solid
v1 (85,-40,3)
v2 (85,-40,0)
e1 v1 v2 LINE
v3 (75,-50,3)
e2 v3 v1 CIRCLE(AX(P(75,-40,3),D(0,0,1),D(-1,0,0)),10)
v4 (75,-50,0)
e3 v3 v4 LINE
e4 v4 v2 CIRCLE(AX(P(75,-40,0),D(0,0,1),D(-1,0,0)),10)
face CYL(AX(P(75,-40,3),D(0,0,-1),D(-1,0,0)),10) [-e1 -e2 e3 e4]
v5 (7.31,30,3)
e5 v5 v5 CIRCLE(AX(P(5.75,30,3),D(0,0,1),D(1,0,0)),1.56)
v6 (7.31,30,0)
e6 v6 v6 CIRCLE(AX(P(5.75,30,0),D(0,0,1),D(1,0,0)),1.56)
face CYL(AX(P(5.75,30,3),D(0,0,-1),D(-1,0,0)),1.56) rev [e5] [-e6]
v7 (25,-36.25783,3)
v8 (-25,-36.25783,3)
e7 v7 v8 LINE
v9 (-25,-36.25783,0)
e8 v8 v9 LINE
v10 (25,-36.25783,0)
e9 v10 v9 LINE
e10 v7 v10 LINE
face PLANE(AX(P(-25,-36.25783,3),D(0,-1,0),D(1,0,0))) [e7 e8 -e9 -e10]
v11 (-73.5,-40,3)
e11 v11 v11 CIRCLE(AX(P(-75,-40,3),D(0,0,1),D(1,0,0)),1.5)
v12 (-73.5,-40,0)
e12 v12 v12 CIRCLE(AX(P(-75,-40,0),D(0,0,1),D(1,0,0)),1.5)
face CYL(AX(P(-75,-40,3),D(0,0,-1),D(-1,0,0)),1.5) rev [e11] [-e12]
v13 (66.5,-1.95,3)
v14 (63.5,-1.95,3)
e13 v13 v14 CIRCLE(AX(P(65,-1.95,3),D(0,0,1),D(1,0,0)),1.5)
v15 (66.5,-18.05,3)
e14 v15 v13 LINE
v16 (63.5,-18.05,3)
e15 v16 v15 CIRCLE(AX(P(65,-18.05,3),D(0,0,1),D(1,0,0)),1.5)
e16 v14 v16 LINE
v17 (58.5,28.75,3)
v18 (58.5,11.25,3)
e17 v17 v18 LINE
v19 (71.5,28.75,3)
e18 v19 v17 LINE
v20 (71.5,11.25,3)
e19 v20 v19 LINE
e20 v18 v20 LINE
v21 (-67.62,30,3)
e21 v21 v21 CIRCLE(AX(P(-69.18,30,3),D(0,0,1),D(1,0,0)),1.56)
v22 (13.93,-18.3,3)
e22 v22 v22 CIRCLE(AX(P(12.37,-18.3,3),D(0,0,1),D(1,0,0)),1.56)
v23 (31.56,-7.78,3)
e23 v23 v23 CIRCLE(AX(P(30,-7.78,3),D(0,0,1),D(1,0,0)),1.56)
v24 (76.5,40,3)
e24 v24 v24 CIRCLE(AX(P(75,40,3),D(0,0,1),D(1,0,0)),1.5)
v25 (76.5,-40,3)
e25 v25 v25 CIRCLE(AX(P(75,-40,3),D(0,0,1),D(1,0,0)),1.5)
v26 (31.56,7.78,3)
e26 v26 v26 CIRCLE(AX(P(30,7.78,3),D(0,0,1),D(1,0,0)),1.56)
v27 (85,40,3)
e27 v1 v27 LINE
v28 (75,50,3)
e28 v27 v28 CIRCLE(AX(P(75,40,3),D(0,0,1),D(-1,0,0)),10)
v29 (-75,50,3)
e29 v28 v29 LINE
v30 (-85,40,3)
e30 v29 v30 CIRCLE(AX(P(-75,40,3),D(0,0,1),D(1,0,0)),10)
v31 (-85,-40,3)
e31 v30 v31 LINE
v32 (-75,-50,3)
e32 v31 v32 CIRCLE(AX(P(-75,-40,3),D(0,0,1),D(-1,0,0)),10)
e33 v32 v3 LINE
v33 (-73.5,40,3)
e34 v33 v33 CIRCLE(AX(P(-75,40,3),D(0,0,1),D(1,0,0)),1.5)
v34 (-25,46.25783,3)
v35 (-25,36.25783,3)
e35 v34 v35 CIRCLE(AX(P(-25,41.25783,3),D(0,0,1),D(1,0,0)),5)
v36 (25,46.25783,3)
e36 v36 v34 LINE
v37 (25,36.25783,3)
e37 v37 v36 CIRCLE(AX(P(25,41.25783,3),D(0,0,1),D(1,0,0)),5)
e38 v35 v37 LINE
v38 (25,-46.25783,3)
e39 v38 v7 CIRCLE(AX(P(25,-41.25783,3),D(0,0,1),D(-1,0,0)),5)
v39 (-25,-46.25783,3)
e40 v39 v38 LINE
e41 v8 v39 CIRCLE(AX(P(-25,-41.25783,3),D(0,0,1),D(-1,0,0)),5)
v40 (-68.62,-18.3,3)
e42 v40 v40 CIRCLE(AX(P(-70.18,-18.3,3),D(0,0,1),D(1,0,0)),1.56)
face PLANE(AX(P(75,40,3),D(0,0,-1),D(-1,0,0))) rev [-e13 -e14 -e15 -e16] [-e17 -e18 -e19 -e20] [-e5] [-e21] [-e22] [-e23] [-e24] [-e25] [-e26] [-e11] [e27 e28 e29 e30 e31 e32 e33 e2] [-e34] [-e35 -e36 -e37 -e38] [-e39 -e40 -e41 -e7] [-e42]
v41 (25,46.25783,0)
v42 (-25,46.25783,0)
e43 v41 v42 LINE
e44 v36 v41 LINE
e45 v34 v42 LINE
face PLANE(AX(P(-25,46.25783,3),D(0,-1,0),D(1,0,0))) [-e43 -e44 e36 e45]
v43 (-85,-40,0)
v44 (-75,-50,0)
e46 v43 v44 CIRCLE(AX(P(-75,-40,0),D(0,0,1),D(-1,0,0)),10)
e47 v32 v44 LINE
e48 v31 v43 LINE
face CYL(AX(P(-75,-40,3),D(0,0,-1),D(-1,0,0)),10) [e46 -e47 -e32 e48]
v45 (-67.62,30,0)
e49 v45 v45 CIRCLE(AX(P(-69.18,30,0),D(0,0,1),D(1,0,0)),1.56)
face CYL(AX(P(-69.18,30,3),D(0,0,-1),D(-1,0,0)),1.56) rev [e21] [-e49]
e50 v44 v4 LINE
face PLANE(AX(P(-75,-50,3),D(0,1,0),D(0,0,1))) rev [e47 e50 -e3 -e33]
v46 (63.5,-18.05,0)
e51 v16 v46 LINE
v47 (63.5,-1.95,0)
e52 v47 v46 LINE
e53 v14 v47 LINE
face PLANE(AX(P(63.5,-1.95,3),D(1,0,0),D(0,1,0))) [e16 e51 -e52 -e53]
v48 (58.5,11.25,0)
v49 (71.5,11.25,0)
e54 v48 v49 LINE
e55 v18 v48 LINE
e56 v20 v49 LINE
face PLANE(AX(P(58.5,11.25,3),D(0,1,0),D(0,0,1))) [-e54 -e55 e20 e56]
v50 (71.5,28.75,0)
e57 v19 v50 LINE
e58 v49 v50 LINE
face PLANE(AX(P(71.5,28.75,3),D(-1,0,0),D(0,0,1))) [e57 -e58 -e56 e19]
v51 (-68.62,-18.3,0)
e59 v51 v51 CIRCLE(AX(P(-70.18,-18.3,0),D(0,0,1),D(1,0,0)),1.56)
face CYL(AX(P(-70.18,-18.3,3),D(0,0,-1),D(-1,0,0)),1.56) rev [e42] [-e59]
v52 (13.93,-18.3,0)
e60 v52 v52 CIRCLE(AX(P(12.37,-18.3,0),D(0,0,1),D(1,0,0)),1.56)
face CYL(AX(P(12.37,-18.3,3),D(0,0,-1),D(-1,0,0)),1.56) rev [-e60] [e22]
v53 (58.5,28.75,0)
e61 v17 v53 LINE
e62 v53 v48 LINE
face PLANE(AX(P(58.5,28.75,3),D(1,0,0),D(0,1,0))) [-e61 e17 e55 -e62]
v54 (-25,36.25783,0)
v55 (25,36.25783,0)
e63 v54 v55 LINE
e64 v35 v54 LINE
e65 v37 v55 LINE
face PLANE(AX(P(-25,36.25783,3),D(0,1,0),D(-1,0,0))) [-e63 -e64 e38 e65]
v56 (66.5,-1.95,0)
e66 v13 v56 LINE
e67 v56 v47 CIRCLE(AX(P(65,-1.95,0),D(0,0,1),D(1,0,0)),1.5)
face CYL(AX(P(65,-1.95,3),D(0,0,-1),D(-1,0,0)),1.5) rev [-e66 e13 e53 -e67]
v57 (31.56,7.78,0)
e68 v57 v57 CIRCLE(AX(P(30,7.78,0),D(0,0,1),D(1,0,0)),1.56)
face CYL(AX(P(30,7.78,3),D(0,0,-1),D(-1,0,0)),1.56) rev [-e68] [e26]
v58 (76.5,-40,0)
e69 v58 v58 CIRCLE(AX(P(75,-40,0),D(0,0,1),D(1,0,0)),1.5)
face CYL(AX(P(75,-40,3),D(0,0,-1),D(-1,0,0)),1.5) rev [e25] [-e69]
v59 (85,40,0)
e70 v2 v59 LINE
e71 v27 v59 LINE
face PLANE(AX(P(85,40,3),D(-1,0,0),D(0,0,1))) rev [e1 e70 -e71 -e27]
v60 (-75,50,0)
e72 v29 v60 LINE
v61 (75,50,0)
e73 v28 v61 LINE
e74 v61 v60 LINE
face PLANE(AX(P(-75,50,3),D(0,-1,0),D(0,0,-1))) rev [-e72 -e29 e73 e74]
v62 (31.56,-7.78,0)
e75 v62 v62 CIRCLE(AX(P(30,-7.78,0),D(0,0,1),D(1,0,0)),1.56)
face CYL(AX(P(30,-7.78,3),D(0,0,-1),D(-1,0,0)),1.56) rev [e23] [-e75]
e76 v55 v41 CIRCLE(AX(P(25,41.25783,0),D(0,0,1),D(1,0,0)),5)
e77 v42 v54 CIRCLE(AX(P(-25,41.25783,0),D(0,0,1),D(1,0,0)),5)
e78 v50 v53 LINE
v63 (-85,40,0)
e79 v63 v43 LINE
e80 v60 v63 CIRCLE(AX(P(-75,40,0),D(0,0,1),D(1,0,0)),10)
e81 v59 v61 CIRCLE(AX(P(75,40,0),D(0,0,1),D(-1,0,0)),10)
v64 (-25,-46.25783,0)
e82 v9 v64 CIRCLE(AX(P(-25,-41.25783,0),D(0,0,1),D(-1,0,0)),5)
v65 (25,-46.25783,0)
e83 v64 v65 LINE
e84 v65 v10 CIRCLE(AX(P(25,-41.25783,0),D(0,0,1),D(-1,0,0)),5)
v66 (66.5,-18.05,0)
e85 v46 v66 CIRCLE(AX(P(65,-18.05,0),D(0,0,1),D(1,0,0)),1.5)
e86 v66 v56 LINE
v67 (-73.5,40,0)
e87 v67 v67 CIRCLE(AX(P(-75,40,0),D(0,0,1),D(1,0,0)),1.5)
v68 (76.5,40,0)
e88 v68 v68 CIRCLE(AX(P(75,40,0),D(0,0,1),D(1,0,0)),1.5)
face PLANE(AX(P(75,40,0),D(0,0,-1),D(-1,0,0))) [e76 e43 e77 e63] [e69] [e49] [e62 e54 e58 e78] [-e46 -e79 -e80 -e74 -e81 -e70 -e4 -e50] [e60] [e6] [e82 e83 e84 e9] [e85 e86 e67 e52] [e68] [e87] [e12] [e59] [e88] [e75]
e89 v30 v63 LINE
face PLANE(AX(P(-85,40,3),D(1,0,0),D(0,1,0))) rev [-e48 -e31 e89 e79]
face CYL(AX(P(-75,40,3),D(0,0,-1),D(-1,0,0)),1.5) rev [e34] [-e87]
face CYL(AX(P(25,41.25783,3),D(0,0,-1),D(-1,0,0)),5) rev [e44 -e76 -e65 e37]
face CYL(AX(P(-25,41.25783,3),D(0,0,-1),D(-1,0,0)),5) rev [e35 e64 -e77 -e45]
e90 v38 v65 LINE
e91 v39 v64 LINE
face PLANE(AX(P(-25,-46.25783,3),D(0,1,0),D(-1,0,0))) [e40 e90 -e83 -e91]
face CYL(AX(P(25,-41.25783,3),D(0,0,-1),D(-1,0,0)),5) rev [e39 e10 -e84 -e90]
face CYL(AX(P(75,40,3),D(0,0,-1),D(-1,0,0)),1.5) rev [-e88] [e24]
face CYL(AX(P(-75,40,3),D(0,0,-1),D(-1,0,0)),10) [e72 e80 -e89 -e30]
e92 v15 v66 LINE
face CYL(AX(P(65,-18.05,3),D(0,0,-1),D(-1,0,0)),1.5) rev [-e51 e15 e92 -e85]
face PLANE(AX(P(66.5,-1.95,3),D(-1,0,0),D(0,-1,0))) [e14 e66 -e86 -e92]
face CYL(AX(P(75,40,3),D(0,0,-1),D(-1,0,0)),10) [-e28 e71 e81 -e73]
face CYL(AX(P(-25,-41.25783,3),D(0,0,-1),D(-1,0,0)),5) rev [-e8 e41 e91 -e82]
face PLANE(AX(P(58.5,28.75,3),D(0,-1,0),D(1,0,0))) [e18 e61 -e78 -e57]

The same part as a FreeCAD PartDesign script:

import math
import FreeCAD as App
import Part
import Sketcher
from FreeCAD import Vector
Q = App.Units.Quantity

doc = App.newDocument("Part")
params = doc.addObject("Spreadsheet::Sheet", "Params")
for row, (alias, value) in enumerate([
    ("sketch1_diameter", "3 mm"),
    ("sketch1_radius", "10 mm"),
    ("sketch1_radius2", "5 mm"),
    ("sketch1_diameter2", "3.12 mm"),
    ("sketch1_width", "150 mm"),
    ("pad1_length", "3 mm"),
], start=1):
    params.set(f"A{row}", alias)
    params.set(f"B{row}", "=" + value)
    params.setAlias(f"B{row}", alias)

body = doc.addObject("PartDesign::Body", "Body")

# Sketch on XY plane
sketch1 = doc.addObject("Sketcher::SketchObject", "Sketch")
body.addObject(sketch1)
sketch1.AttachmentSupport = (doc.XY_Plane, [""])
sketch1.MapMode = "FlatFace"
sketch1.addGeometry(Part.LineSegment(Vector(75, 50, 0), Vector(-75, 50, 0)), False)
sketch1.addGeometry(Part.ArcOfCircle(Part.Circle(Vector(-75, 40, 0), Vector(0, 0, 1), 10), math.radians(90), math.radians(180)), False)
sketch1.addGeometry(Part.LineSegment(Vector(-85, 40, 0), Vector(-85, -40, 0)), False)
sketch1.addGeometry(Part.ArcOfCircle(Part.Circle(Vector(-75, -40, 0), Vector(0, 0, 1), 10), math.radians(180), math.radians(270)), False)
sketch1.addGeometry(Part.LineSegment(Vector(-75, -50, 0), Vector(75, -50, 0)), False)
sketch1.addGeometry(Part.ArcOfCircle(Part.Circle(Vector(75, -40, 0), Vector(0, 0, 1), 10), math.radians(-90), math.radians(0)), False)
sketch1.addGeometry(Part.LineSegment(Vector(85, -40, 0), Vector(85, 40, 0)), False)
sketch1.addGeometry(Part.ArcOfCircle(Part.Circle(Vector(75, 40, 0), Vector(0, 0, 1), 10), math.radians(0), math.radians(90)), False)
sketch1.addGeometry(Part.Circle(Vector(75, -40, 0), Vector(0, 0, 1), 1.5), False)
sketch1.addGeometry(Part.LineSegment(Vector(66.5, -1.95, 0), Vector(66.5, -18.05, 0)), False)
sketch1.addGeometry(Part.ArcOfCircle(Part.Circle(Vector(65, -18.05, 0), Vector(0, 0, 1), 1.5), math.radians(180), math.radians(360)), False)
sketch1.addGeometry(Part.LineSegment(Vector(63.5, -18.05, 0), Vector(63.5, -1.95, 0)), False)
sketch1.addGeometry(Part.ArcOfCircle(Part.Circle(Vector(65, -1.95, 0), Vector(0, 0, 1), 1.5), math.radians(0), math.radians(180)), False)
sketch1.addGeometry(Part.Circle(Vector(12.37, -18.3, 0), Vector(0, 0, 1), 1.56), False)
sketch1.addGeometry(Part.Circle(Vector(30, -7.78, 0), Vector(0, 0, 1), 1.56), False)
sketch1.addGeometry(Part.ArcOfCircle(Part.Circle(Vector(-25, -41.25783, 0), Vector(0, 0, 1), 5), math.radians(90), math.radians(270)), False)
sketch1.addGeometry(Part.LineSegment(Vector(-25, -36.25783, 0), Vector(25, -36.25783, 0)), False)
sketch1.addGeometry(Part.ArcOfCircle(Part.Circle(Vector(25, -41.25783, 0), Vector(0, 0, 1), 5), math.radians(-90), math.radians(90)), False)
sketch1.addGeometry(Part.LineSegment(Vector(25, -46.25783, 0), Vector(-25, -46.25783, 0)), False)
sketch1.addGeometry(Part.Circle(Vector(-75, -40, 0), Vector(0, 0, 1), 1.5), False)
sketch1.addGeometry(Part.Circle(Vector(-70.18, -18.3, 0), Vector(0, 0, 1), 1.56), False)
sketch1.addGeometry(Part.LineSegment(Vector(58.5, 11.25, 0), Vector(58.5, 28.75, 0)), False)
sketch1.addGeometry(Part.LineSegment(Vector(58.5, 28.75, 0), Vector(71.5, 28.75, 0)), False)
sketch1.addGeometry(Part.LineSegment(Vector(71.5, 28.75, 0), Vector(71.5, 11.25, 0)), False)
sketch1.addGeometry(Part.LineSegment(Vector(71.5, 11.25, 0), Vector(58.5, 11.25, 0)), False)
sketch1.addGeometry(Part.Circle(Vector(30, 7.78, 0), Vector(0, 0, 1), 1.56), False)
sketch1.addGeometry(Part.Circle(Vector(75, 40, 0), Vector(0, 0, 1), 1.5), False)
sketch1.addGeometry(Part.Circle(Vector(5.75, 30, 0), Vector(0, 0, 1), 1.56), False)
sketch1.addGeometry(Part.LineSegment(Vector(-25, 46.25783, 0), Vector(25, 46.25783, 0)), False)
sketch1.addGeometry(Part.ArcOfCircle(Part.Circle(Vector(25, 41.25783, 0), Vector(0, 0, 1), 5), math.radians(-90), math.radians(90)), False)
sketch1.addGeometry(Part.LineSegment(Vector(25, 36.25783, 0), Vector(-25, 36.25783, 0)), False)
sketch1.addGeometry(Part.ArcOfCircle(Part.Circle(Vector(-25, 41.25783, 0), Vector(0, 0, 1), 5), math.radians(90), math.radians(270)), False)
sketch1.addGeometry(Part.Circle(Vector(-69.18, 30, 0), Vector(0, 0, 1), 1.56), False)
sketch1.addGeometry(Part.Circle(Vector(-75, 40, 0), Vector(0, 0, 1), 1.5), False)
sketch1.addConstraint(Sketcher.Constraint("Tangent", 0, 2, 1, 1))
sketch1.addConstraint(Sketcher.Constraint("Tangent", 1, 2, 2, 1))
sketch1.addConstraint(Sketcher.Constraint("Tangent", 2, 2, 3, 1))
sketch1.addConstraint(Sketcher.Constraint("Tangent", 3, 2, 4, 1))
sketch1.addConstraint(Sketcher.Constraint("Tangent", 4, 2, 5, 1))
sketch1.addConstraint(Sketcher.Constraint("Tangent", 5, 2, 6, 1))
sketch1.addConstraint(Sketcher.Constraint("Tangent", 6, 2, 7, 1))
sketch1.addConstraint(Sketcher.Constraint("Tangent", 7, 2, 0, 1))
sketch1.addConstraint(Sketcher.Constraint("Tangent", 9, 2, 10, 2))
sketch1.addConstraint(Sketcher.Constraint("Tangent", 10, 1, 11, 1))
sketch1.addConstraint(Sketcher.Constraint("Tangent", 11, 2, 12, 2))
sketch1.addConstraint(Sketcher.Constraint("Tangent", 12, 1, 9, 1))
sketch1.addConstraint(Sketcher.Constraint("Tangent", 15, 1, 16, 1))
sketch1.addConstraint(Sketcher.Constraint("Tangent", 16, 2, 17, 2))
sketch1.addConstraint(Sketcher.Constraint("Tangent", 17, 1, 18, 1))
sketch1.addConstraint(Sketcher.Constraint("Tangent", 18, 2, 15, 2))
sketch1.addConstraint(Sketcher.Constraint("Coincident", 21, 2, 22, 1))
sketch1.addConstraint(Sketcher.Constraint("Coincident", 22, 2, 23, 1))
sketch1.addConstraint(Sketcher.Constraint("Coincident", 23, 2, 24, 1))
sketch1.addConstraint(Sketcher.Constraint("Coincident", 24, 2, 21, 1))
sketch1.addConstraint(Sketcher.Constraint("Tangent", 28, 2, 29, 2))
sketch1.addConstraint(Sketcher.Constraint("Tangent", 29, 1, 30, 1))
sketch1.addConstraint(Sketcher.Constraint("Tangent", 30, 2, 31, 2))
sketch1.addConstraint(Sketcher.Constraint("Tangent", 31, 1, 28, 1))
sketch1.addConstraint(Sketcher.Constraint("Horizontal", 0))
sketch1.addConstraint(Sketcher.Constraint("Vertical", 2))
sketch1.addConstraint(Sketcher.Constraint("Horizontal", 4))
sketch1.addConstraint(Sketcher.Constraint("Vertical", 6))
sketch1.addConstraint(Sketcher.Constraint("Vertical", 9))
sketch1.addConstraint(Sketcher.Constraint("Vertical", 11))
sketch1.addConstraint(Sketcher.Constraint("Horizontal", 16))
sketch1.addConstraint(Sketcher.Constraint("Horizontal", 18))
sketch1.addConstraint(Sketcher.Constraint("Vertical", 21))
sketch1.addConstraint(Sketcher.Constraint("Horizontal", 22))
sketch1.addConstraint(Sketcher.Constraint("Vertical", 23))
sketch1.addConstraint(Sketcher.Constraint("Horizontal", 24))
sketch1.addConstraint(Sketcher.Constraint("Horizontal", 28))
sketch1.addConstraint(Sketcher.Constraint("Horizontal", 30))
sketch1.addConstraint(Sketcher.Constraint("Coincident", 8, 3, 5, 3))
sketch1.addConstraint(Sketcher.Constraint("Coincident", 19, 3, 3, 3))
sketch1.addConstraint(Sketcher.Constraint("Coincident", 26, 3, 7, 3))
sketch1.addConstraint(Sketcher.Constraint("Coincident", 33, 3, 1, 3))
sketch1.addConstraint(Sketcher.Constraint("Equal", 1, 3))
sketch1.addConstraint(Sketcher.Constraint("Equal", 3, 5))
sketch1.addConstraint(Sketcher.Constraint("Equal", 5, 7))
sketch1.addConstraint(Sketcher.Constraint("Equal", 8, 10))
sketch1.addConstraint(Sketcher.Constraint("Equal", 13, 14))
sketch1.addConstraint(Sketcher.Constraint("Equal", 12, 19))
sketch1.addConstraint(Sketcher.Constraint("Equal", 14, 20))
sketch1.addConstraint(Sketcher.Constraint("Equal", 20, 25))
sketch1.addConstraint(Sketcher.Constraint("Equal", 19, 26))
sketch1.addConstraint(Sketcher.Constraint("Equal", 25, 27))
sketch1.addConstraint(Sketcher.Constraint("Equal", 17, 29))
sketch1.addConstraint(Sketcher.Constraint("Equal", 27, 32))
sketch1.addConstraint(Sketcher.Constraint("Equal", 26, 33))
sketch1.addConstraint(Sketcher.Constraint("Symmetric", 1, 3, 5, 3, -1, 1))
sketch1.addConstraint(Sketcher.Constraint("Symmetric", 15, 3, 29, 3, -1, 1))
sketch1.addConstraint(Sketcher.Constraint("Symmetric", 14, 3, 25, 3, -1))
sketch1.addConstraint(Sketcher.Constraint("Horizontal", 13, 3, 20, 3))
sketch1.addConstraint(Sketcher.Constraint("Horizontal", 27, 3, 32, 3))
sketch1.addConstraint(Sketcher.Constraint("Vertical", 17, 3, 29, 3))
sketch1.addConstraint(Sketcher.Constraint("Vertical", 15, 3, 31, 3))
sketch1.addConstraint(Sketcher.Constraint("Diameter", 8, Q("3 mm")))
sketch1.addConstraint(Sketcher.Constraint("Radius", 1, Q("10 mm")))
sketch1.addConstraint(Sketcher.Constraint("Radius", 15, Q("5 mm")))
sketch1.addConstraint(Sketcher.Constraint("Diameter", 13, Q("3.12 mm")))
sketch1.addConstraint(Sketcher.Constraint("DistanceX", 0, 2, 0, 1, Q("150 mm")))
sketch1.addConstraint(Sketcher.Constraint("DistanceX", 16, 1, 16, 2, Q("50 mm")))
sketch1.addConstraint(Sketcher.Constraint("DistanceX", 22, 1, 22, 2, Q("13 mm")))
sketch1.addConstraint(Sketcher.Constraint("DistanceY", 2, 2, 2, 1, Q("80 mm")))
sketch1.addConstraint(Sketcher.Constraint("DistanceY", 9, 2, 9, 1, Q("16.1 mm")))
sketch1.addConstraint(Sketcher.Constraint("DistanceY", 21, 1, 21, 2, Q("17.5 mm")))
sketch1.addConstraint(Sketcher.Constraint("DistanceX", -1, 1, 10, 3, Q("65 mm")))
sketch1.addConstraint(Sketcher.Constraint("DistanceX", -1, 1, 14, 3, Q("30 mm")))
sketch1.addConstraint(Sketcher.Constraint("DistanceY", -1, 1, 27, 3, Q("30 mm")))
sketch1.addConstraint(Sketcher.Constraint("DistanceX", 20, 3, 32, 3, Q("1 mm")))
sketch1.addConstraint(Sketcher.Constraint("DistanceX", 21, 2, 11, 2, Q("5 mm")))
sketch1.addConstraint(Sketcher.Constraint("DistanceY", 13, 3, -1, 1, Q("18.3 mm")))
sketch1.addConstraint(Sketcher.Constraint("DistanceY", 11, 2, 21, 2, Q("30.7 mm")))
sketch1.addConstraint(Sketcher.Constraint("DistanceY", 10, 3, -1, 1, Q("18.05 mm")))
sketch1.addConstraint(Sketcher.Constraint("DistanceX", -1, 1, 13, 3, Q("12.37 mm")))
sketch1.addConstraint(Sketcher.Constraint("DistanceY", 14, 3, -1, 1, Q("7.78 mm")))
sketch1.addConstraint(Sketcher.Constraint("DistanceX", 20, 3, -1, 1, Q("70.18 mm")))
sketch1.addConstraint(Sketcher.Constraint("DistanceX", -1, 1, 27, 3, Q("5.75 mm")))
sketch1.addConstraint(Sketcher.Constraint("DistanceY", 15, 3, -1, 1, Q("41.25783 mm")))
sketch1.setExpression("Constraints[62]", "Params.sketch1_diameter")
sketch1.setExpression("Constraints[63]", "Params.sketch1_radius")
sketch1.setExpression("Constraints[64]", "Params.sketch1_radius2")
sketch1.setExpression("Constraints[65]", "Params.sketch1_diameter2")
sketch1.setExpression("Constraints[66]", "Params.sketch1_width")
pad1 = doc.addObject("PartDesign::Pad", "Pad")
body.addObject(pad1)
pad1.Profile = sketch1
pad1.setExpression("Length", "Params.pad1_length")

doc.recompute()
